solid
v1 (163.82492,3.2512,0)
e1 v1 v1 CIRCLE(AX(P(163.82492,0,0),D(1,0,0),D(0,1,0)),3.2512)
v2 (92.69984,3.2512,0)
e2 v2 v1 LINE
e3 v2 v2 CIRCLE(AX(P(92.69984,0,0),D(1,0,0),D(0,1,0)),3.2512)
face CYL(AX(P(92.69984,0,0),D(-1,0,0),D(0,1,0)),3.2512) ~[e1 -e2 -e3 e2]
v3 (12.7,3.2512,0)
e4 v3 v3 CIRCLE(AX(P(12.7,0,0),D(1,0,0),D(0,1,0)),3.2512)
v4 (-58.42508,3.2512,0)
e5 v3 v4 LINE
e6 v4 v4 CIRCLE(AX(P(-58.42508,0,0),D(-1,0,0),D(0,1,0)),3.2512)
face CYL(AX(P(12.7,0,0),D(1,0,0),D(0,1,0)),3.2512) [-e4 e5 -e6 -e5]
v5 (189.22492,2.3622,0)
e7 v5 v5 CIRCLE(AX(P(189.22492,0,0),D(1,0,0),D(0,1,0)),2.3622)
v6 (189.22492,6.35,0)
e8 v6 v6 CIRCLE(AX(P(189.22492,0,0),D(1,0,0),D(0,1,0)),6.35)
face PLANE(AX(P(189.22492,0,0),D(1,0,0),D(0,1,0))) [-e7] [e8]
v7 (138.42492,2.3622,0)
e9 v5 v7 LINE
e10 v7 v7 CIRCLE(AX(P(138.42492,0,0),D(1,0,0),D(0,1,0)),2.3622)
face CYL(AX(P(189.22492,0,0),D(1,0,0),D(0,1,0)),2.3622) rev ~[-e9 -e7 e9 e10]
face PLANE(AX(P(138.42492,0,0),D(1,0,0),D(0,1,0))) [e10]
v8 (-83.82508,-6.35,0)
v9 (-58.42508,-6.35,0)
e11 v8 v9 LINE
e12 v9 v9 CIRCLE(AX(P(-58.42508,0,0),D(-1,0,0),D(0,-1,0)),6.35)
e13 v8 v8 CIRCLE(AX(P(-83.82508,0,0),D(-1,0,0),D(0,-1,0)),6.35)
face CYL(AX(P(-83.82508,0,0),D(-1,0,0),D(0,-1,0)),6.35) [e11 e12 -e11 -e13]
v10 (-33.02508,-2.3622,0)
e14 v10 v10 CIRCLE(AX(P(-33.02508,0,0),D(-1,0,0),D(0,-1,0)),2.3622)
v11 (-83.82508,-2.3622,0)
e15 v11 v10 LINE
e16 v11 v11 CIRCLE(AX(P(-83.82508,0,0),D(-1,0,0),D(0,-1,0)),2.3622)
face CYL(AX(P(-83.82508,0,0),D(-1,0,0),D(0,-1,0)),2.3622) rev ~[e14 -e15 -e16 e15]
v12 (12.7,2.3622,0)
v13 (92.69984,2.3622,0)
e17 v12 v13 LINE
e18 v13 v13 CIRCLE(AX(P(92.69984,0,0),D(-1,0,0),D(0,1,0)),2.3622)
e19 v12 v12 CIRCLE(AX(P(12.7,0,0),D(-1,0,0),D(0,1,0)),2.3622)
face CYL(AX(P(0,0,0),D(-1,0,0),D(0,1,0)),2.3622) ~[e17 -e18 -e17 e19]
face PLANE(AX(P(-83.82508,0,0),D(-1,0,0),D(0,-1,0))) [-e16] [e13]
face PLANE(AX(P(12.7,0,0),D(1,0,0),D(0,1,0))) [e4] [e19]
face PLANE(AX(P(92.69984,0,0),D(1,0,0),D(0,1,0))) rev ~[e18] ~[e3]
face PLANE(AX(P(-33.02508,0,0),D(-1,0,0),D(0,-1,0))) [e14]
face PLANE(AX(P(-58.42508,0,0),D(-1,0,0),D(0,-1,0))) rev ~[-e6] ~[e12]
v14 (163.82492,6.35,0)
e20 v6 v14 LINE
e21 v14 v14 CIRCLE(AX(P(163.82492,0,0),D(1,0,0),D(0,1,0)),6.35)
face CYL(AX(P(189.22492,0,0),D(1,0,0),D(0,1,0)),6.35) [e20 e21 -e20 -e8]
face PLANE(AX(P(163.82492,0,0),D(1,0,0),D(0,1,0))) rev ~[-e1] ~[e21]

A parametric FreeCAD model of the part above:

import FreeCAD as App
import Part
import Sketcher
Q = App.Units.Quantity

doc = App.newDocument("Part")
body = doc.addObject("PartDesign::Body", "Body")

# Sketch on YZ plane
sketch1 = body.newObject("Sketcher::SketchObject", "Sketch")
sketch1.AttachmentSupport = (doc.getObject("YZ_Plane"), [""])
sketch1.MapMode = "FlatFace"
sketch1.addGeometry(Part.Circle(App.Vector(0, 0, 0), App.Vector(0, 0, 1), 2.4), False)
sketch1.addConstraint(Sketcher.Constraint("Coincident", 0, 3, -1, 1))
sketch1.addConstraint(Sketcher.Constraint("Diameter", 0, Q("0.186 in")))
pad1 = body.newObject("PartDesign::Pad", "Pad")
pad1.Profile = sketch1
pad1.Length = Q("4.1496 in")

# Sketch on YZ plane
sketch2 = body.newObject("Sketcher::SketchObject", "Sketch001")
sketch2.AttachmentSupport = (doc.getObject("YZ_Plane"), [""])
sketch2.MapMode = "FlatFace"
sketch2.AttachmentOffset = App.Placement(App.Vector(0, 0, 0.5 * 25.4), App.Rotation())
sketch2.addGeometry(Part.Circle(App.Vector(0, 0, 0), App.Vector(0, 0, 1), 3.3), False)
sketch2.addConstraint(Sketcher.Constraint("Coincident", 0, 3, -1, 1))
sketch2.addConstraint(Sketcher.Constraint("Diameter", 0, Q("0.256 in")))
pad2 = body.newObject("PartDesign::Pad", "Pad001")
pad2.Profile = sketch2
pad2.Length = Q("3.8002 in")
pad2.Reversed = True

# Sketch on YZ plane
sketch3 = body.newObject("Sketcher::SketchObject", "Sketch002")
sketch3.AttachmentSupport = (doc.getObject("YZ_Plane"), [""])
sketch3.MapMode = "FlatFace"
sketch3.AttachmentOffset = App.Placement(App.Vector(0, 0, 3.6496 * 25.4), App.Rotation())
sketch3.addGeometry(Part.Circle(App.Vector(0, 0, 0), App.Vector(0, 0, 1), 3.3), False)
sketch3.addConstraint(Sketcher.Constraint("Coincident", 0, 3, -1, 1))
sketch3.addConstraint(Sketcher.Constraint("Diameter", 0, Q("0.256 in")))
pad3 = body.newObject("PartDesign::Pad", "Pad002")
pad3.Profile = sketch3
pad3.Length = Q("3.8002 in")

# Sketch on YZ plane
sketch4 = body.newObject("Sketcher::SketchObject", "Sketch003")
sketch4.AttachmentSupport = (doc.getObject("YZ_Plane"), [""])
sketch4.MapMode = "FlatFace"
sketch4.AttachmentOffset = App.Placement(App.Vector(0, 0, -3.3002 * 25.4), App.Rotation())
sketch4.addGeometry(Part.Circle(App.Vector(0, 0, 0), App.Vector(0, 0, 1), 6.3), False)
sketch4.addGeometry(Part.Circle(App.Vector(0, 0, 0), App.Vector(0, 0, 1), 3.3), False)
sketch4.addConstraint(Sketcher.Constraint("Coincident", 0, 3, -1, 1))
sketch4.addConstraint(Sketcher.Constraint("Coincident", 1, 3, -1, 1))
sketch4.addConstraint(Sketcher.Constraint("Diameter", 0, Q("0.5 in")))
sketch4.addConstraint(Sketcher.Constraint("Diameter", 1, Q("0.256 in")))
pad4 = body.newObject("PartDesign::Pad", "Pad003")
pad4.Profile = sketch4
pad4.Length = Q("1 in")

# Sketch on YZ plane
sketch5 = body.newObject("Sketcher::SketchObject", "Sketch004")
sketch5.AttachmentSupport = (doc.getObject("YZ_Plane"), [""])
sketch5.MapMode = "FlatFace"
sketch5.AttachmentOffset = App.Placement(App.Vector(0, 0, -3.3002 * 25.4), App.Rotation())
sketch5.addGeometry(Part.Circle(App.Vector(0, 0, 0), App.Vector(0, 0, 1), 2.4), False)
sketch5.addConstraint(Sketcher.Constraint("Coincident", 0, 3, -1, 1))
sketch5.addConstraint(Sketcher.Constraint("Diameter", 0, Q("0.186 in")))
pocket1 = body.newObject("PartDesign::Pocket", "Pocket")
pocket1.Profile = sketch5
pocket1.Length = Q("2 in")
pocket1.Reversed = True

# Sketch on YZ plane
sketch6 = body.newObject("Sketcher::SketchObject", "Sketch005")
sketch6.AttachmentSupport = (doc.getObject("YZ_Plane"), [""])
sketch6.MapMode = "FlatFace"
sketch6.AttachmentOffset = App.Placement(App.Vector(0, 0, 7.4498 * 25.4), App.Rotation())
sketch6.addGeometry(Part.Circle(App.Vector(0, 0, 0), App.Vector(0, 0, 1), 6.3), False)
sketch6.addGeometry(Part.Circle(App.Vector(0, 0, 0), App.Vector(0, 0, 1), 3.3), False)
sketch6.addConstraint(Sketcher.Constraint("Coincident", 0, 3, -1, 1))
sketch6.addConstraint(Sketcher.Constraint("Coincident", 1, 3, -1, 1))
sketch6.addConstraint(Sketcher.Constraint("Diameter", 0, Q("0.5 in")))
sketch6.addConstraint(Sketcher.Constraint("Diameter", 1, Q("0.256 in")))
pad5 = body.newObject("PartDesign::Pad", "Pad004")
pad5.Profile = sketch6
pad5.Length = Q("1 in")
pad5.Reversed = True

# Sketch on YZ plane
sketch7 = body.newObject("Sketcher::SketchObject", "Sketch006")
sketch7.AttachmentSupport = (doc.getObject("YZ_Plane"), [""])
sketch7.MapMode = "FlatFace"
sketch7.AttachmentOffset = App.Placement(App.Vector(0, 0, 7.4498 * 25.4), App.Rotation())
sketch7.addGeometry(Part.Circle(App.Vector(0, 0, 0), App.Vector(0, 0, 1), 2.4), False)
sketch7.addConstraint(Sketcher.Constraint("Coincident", 0, 3, -1, 1))
sketch7.addConstraint(Sketcher.Constraint("Diameter", 0, Q("0.186 in")))
pocket2 = body.newObject("PartDesign::Pocket", "Pocket001")
pocket2.Profile = sketch7
pocket2.Length = Q("2 in")

doc.recompute()
